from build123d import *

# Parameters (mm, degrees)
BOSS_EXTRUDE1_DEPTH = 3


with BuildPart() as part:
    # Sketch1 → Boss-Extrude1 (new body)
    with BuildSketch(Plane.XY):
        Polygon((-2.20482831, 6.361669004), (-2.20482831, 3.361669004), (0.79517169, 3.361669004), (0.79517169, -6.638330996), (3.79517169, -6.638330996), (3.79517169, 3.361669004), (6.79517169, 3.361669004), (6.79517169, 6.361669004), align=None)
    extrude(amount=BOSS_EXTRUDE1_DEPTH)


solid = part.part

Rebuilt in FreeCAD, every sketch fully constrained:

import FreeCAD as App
import Part
import Sketcher
Q = App.Units.Quantity


def add_polygon(sketch, points):
    """Adds a closed chain of lines whose ends are joined by coincident constraints."""
    first, n = sketch.GeometryCount, len(points)
    for a, b in zip(points, points[1:] + points[:1]):
        sketch.addGeometry(Part.LineSegment(App.Vector(*a, 0), App.Vector(*b, 0)), False)
    for i in range(n):
        sketch.addConstraint(Sketcher.Constraint("Coincident", first + i, 2, first + (i + 1) % n, 1))

doc = App.newDocument("Part")
body = doc.addObject("PartDesign::Body", "Body")

sketch1 = body.newObject("Sketcher::SketchObject", "Sketch")
sketch1.AttachmentSupport = (doc.getObject("XY_Plane"), [""])
sketch1.MapMode = "FlatFace"
add_polygon(sketch1, [(-2.2, 6.4), (-2.2, 3.4), (0.8, 3.4), (0.8, -6.6), (3.8, -6.6), (3.8, 3.4), (6.8, 3.4), (6.8, 6.4)])
sketch1.addConstraint([
    Sketcher.Constraint("Vertical", 0),
    Sketcher.Constraint("Horizontal", 1),
    Sketcher.Constraint("Vertical", 2),
    Sketcher.Constraint("Horizontal", 3),
    Sketcher.Constraint("Vertical", 4),
    Sketcher.Constraint("Horizontal", 5),
    Sketcher.Constraint("Vertical", 6),
    Sketcher.Constraint("Horizontal", 7),
    Sketcher.Constraint("Horizontal", 1, 2, 4, 2),
    Sketcher.Constraint("Equal", 1, 3),
    Sketcher.Constraint("Equal", 3, 5),
    Sketcher.Constraint("Equal", 5, 0),
    Sketcher.Constraint("DistanceX", 1, 1, 1, 2, Q("3 mm")),
    Sketcher.Constraint("DistanceY", 2, 2, 2, 1, Q("10 mm")),
    Sketcher.Constraint("DistanceX", 0, 2, -1, 1, Q("2.204828 mm")),
    Sketcher.Constraint("DistanceY", -1, 1, 0, 2, Q("3.361669 mm")),
])
pad1 = body.newObject("PartDesign::Pad", "Pad")
pad1.Profile = sketch1
pad1.Length = 3

doc.recompute()
